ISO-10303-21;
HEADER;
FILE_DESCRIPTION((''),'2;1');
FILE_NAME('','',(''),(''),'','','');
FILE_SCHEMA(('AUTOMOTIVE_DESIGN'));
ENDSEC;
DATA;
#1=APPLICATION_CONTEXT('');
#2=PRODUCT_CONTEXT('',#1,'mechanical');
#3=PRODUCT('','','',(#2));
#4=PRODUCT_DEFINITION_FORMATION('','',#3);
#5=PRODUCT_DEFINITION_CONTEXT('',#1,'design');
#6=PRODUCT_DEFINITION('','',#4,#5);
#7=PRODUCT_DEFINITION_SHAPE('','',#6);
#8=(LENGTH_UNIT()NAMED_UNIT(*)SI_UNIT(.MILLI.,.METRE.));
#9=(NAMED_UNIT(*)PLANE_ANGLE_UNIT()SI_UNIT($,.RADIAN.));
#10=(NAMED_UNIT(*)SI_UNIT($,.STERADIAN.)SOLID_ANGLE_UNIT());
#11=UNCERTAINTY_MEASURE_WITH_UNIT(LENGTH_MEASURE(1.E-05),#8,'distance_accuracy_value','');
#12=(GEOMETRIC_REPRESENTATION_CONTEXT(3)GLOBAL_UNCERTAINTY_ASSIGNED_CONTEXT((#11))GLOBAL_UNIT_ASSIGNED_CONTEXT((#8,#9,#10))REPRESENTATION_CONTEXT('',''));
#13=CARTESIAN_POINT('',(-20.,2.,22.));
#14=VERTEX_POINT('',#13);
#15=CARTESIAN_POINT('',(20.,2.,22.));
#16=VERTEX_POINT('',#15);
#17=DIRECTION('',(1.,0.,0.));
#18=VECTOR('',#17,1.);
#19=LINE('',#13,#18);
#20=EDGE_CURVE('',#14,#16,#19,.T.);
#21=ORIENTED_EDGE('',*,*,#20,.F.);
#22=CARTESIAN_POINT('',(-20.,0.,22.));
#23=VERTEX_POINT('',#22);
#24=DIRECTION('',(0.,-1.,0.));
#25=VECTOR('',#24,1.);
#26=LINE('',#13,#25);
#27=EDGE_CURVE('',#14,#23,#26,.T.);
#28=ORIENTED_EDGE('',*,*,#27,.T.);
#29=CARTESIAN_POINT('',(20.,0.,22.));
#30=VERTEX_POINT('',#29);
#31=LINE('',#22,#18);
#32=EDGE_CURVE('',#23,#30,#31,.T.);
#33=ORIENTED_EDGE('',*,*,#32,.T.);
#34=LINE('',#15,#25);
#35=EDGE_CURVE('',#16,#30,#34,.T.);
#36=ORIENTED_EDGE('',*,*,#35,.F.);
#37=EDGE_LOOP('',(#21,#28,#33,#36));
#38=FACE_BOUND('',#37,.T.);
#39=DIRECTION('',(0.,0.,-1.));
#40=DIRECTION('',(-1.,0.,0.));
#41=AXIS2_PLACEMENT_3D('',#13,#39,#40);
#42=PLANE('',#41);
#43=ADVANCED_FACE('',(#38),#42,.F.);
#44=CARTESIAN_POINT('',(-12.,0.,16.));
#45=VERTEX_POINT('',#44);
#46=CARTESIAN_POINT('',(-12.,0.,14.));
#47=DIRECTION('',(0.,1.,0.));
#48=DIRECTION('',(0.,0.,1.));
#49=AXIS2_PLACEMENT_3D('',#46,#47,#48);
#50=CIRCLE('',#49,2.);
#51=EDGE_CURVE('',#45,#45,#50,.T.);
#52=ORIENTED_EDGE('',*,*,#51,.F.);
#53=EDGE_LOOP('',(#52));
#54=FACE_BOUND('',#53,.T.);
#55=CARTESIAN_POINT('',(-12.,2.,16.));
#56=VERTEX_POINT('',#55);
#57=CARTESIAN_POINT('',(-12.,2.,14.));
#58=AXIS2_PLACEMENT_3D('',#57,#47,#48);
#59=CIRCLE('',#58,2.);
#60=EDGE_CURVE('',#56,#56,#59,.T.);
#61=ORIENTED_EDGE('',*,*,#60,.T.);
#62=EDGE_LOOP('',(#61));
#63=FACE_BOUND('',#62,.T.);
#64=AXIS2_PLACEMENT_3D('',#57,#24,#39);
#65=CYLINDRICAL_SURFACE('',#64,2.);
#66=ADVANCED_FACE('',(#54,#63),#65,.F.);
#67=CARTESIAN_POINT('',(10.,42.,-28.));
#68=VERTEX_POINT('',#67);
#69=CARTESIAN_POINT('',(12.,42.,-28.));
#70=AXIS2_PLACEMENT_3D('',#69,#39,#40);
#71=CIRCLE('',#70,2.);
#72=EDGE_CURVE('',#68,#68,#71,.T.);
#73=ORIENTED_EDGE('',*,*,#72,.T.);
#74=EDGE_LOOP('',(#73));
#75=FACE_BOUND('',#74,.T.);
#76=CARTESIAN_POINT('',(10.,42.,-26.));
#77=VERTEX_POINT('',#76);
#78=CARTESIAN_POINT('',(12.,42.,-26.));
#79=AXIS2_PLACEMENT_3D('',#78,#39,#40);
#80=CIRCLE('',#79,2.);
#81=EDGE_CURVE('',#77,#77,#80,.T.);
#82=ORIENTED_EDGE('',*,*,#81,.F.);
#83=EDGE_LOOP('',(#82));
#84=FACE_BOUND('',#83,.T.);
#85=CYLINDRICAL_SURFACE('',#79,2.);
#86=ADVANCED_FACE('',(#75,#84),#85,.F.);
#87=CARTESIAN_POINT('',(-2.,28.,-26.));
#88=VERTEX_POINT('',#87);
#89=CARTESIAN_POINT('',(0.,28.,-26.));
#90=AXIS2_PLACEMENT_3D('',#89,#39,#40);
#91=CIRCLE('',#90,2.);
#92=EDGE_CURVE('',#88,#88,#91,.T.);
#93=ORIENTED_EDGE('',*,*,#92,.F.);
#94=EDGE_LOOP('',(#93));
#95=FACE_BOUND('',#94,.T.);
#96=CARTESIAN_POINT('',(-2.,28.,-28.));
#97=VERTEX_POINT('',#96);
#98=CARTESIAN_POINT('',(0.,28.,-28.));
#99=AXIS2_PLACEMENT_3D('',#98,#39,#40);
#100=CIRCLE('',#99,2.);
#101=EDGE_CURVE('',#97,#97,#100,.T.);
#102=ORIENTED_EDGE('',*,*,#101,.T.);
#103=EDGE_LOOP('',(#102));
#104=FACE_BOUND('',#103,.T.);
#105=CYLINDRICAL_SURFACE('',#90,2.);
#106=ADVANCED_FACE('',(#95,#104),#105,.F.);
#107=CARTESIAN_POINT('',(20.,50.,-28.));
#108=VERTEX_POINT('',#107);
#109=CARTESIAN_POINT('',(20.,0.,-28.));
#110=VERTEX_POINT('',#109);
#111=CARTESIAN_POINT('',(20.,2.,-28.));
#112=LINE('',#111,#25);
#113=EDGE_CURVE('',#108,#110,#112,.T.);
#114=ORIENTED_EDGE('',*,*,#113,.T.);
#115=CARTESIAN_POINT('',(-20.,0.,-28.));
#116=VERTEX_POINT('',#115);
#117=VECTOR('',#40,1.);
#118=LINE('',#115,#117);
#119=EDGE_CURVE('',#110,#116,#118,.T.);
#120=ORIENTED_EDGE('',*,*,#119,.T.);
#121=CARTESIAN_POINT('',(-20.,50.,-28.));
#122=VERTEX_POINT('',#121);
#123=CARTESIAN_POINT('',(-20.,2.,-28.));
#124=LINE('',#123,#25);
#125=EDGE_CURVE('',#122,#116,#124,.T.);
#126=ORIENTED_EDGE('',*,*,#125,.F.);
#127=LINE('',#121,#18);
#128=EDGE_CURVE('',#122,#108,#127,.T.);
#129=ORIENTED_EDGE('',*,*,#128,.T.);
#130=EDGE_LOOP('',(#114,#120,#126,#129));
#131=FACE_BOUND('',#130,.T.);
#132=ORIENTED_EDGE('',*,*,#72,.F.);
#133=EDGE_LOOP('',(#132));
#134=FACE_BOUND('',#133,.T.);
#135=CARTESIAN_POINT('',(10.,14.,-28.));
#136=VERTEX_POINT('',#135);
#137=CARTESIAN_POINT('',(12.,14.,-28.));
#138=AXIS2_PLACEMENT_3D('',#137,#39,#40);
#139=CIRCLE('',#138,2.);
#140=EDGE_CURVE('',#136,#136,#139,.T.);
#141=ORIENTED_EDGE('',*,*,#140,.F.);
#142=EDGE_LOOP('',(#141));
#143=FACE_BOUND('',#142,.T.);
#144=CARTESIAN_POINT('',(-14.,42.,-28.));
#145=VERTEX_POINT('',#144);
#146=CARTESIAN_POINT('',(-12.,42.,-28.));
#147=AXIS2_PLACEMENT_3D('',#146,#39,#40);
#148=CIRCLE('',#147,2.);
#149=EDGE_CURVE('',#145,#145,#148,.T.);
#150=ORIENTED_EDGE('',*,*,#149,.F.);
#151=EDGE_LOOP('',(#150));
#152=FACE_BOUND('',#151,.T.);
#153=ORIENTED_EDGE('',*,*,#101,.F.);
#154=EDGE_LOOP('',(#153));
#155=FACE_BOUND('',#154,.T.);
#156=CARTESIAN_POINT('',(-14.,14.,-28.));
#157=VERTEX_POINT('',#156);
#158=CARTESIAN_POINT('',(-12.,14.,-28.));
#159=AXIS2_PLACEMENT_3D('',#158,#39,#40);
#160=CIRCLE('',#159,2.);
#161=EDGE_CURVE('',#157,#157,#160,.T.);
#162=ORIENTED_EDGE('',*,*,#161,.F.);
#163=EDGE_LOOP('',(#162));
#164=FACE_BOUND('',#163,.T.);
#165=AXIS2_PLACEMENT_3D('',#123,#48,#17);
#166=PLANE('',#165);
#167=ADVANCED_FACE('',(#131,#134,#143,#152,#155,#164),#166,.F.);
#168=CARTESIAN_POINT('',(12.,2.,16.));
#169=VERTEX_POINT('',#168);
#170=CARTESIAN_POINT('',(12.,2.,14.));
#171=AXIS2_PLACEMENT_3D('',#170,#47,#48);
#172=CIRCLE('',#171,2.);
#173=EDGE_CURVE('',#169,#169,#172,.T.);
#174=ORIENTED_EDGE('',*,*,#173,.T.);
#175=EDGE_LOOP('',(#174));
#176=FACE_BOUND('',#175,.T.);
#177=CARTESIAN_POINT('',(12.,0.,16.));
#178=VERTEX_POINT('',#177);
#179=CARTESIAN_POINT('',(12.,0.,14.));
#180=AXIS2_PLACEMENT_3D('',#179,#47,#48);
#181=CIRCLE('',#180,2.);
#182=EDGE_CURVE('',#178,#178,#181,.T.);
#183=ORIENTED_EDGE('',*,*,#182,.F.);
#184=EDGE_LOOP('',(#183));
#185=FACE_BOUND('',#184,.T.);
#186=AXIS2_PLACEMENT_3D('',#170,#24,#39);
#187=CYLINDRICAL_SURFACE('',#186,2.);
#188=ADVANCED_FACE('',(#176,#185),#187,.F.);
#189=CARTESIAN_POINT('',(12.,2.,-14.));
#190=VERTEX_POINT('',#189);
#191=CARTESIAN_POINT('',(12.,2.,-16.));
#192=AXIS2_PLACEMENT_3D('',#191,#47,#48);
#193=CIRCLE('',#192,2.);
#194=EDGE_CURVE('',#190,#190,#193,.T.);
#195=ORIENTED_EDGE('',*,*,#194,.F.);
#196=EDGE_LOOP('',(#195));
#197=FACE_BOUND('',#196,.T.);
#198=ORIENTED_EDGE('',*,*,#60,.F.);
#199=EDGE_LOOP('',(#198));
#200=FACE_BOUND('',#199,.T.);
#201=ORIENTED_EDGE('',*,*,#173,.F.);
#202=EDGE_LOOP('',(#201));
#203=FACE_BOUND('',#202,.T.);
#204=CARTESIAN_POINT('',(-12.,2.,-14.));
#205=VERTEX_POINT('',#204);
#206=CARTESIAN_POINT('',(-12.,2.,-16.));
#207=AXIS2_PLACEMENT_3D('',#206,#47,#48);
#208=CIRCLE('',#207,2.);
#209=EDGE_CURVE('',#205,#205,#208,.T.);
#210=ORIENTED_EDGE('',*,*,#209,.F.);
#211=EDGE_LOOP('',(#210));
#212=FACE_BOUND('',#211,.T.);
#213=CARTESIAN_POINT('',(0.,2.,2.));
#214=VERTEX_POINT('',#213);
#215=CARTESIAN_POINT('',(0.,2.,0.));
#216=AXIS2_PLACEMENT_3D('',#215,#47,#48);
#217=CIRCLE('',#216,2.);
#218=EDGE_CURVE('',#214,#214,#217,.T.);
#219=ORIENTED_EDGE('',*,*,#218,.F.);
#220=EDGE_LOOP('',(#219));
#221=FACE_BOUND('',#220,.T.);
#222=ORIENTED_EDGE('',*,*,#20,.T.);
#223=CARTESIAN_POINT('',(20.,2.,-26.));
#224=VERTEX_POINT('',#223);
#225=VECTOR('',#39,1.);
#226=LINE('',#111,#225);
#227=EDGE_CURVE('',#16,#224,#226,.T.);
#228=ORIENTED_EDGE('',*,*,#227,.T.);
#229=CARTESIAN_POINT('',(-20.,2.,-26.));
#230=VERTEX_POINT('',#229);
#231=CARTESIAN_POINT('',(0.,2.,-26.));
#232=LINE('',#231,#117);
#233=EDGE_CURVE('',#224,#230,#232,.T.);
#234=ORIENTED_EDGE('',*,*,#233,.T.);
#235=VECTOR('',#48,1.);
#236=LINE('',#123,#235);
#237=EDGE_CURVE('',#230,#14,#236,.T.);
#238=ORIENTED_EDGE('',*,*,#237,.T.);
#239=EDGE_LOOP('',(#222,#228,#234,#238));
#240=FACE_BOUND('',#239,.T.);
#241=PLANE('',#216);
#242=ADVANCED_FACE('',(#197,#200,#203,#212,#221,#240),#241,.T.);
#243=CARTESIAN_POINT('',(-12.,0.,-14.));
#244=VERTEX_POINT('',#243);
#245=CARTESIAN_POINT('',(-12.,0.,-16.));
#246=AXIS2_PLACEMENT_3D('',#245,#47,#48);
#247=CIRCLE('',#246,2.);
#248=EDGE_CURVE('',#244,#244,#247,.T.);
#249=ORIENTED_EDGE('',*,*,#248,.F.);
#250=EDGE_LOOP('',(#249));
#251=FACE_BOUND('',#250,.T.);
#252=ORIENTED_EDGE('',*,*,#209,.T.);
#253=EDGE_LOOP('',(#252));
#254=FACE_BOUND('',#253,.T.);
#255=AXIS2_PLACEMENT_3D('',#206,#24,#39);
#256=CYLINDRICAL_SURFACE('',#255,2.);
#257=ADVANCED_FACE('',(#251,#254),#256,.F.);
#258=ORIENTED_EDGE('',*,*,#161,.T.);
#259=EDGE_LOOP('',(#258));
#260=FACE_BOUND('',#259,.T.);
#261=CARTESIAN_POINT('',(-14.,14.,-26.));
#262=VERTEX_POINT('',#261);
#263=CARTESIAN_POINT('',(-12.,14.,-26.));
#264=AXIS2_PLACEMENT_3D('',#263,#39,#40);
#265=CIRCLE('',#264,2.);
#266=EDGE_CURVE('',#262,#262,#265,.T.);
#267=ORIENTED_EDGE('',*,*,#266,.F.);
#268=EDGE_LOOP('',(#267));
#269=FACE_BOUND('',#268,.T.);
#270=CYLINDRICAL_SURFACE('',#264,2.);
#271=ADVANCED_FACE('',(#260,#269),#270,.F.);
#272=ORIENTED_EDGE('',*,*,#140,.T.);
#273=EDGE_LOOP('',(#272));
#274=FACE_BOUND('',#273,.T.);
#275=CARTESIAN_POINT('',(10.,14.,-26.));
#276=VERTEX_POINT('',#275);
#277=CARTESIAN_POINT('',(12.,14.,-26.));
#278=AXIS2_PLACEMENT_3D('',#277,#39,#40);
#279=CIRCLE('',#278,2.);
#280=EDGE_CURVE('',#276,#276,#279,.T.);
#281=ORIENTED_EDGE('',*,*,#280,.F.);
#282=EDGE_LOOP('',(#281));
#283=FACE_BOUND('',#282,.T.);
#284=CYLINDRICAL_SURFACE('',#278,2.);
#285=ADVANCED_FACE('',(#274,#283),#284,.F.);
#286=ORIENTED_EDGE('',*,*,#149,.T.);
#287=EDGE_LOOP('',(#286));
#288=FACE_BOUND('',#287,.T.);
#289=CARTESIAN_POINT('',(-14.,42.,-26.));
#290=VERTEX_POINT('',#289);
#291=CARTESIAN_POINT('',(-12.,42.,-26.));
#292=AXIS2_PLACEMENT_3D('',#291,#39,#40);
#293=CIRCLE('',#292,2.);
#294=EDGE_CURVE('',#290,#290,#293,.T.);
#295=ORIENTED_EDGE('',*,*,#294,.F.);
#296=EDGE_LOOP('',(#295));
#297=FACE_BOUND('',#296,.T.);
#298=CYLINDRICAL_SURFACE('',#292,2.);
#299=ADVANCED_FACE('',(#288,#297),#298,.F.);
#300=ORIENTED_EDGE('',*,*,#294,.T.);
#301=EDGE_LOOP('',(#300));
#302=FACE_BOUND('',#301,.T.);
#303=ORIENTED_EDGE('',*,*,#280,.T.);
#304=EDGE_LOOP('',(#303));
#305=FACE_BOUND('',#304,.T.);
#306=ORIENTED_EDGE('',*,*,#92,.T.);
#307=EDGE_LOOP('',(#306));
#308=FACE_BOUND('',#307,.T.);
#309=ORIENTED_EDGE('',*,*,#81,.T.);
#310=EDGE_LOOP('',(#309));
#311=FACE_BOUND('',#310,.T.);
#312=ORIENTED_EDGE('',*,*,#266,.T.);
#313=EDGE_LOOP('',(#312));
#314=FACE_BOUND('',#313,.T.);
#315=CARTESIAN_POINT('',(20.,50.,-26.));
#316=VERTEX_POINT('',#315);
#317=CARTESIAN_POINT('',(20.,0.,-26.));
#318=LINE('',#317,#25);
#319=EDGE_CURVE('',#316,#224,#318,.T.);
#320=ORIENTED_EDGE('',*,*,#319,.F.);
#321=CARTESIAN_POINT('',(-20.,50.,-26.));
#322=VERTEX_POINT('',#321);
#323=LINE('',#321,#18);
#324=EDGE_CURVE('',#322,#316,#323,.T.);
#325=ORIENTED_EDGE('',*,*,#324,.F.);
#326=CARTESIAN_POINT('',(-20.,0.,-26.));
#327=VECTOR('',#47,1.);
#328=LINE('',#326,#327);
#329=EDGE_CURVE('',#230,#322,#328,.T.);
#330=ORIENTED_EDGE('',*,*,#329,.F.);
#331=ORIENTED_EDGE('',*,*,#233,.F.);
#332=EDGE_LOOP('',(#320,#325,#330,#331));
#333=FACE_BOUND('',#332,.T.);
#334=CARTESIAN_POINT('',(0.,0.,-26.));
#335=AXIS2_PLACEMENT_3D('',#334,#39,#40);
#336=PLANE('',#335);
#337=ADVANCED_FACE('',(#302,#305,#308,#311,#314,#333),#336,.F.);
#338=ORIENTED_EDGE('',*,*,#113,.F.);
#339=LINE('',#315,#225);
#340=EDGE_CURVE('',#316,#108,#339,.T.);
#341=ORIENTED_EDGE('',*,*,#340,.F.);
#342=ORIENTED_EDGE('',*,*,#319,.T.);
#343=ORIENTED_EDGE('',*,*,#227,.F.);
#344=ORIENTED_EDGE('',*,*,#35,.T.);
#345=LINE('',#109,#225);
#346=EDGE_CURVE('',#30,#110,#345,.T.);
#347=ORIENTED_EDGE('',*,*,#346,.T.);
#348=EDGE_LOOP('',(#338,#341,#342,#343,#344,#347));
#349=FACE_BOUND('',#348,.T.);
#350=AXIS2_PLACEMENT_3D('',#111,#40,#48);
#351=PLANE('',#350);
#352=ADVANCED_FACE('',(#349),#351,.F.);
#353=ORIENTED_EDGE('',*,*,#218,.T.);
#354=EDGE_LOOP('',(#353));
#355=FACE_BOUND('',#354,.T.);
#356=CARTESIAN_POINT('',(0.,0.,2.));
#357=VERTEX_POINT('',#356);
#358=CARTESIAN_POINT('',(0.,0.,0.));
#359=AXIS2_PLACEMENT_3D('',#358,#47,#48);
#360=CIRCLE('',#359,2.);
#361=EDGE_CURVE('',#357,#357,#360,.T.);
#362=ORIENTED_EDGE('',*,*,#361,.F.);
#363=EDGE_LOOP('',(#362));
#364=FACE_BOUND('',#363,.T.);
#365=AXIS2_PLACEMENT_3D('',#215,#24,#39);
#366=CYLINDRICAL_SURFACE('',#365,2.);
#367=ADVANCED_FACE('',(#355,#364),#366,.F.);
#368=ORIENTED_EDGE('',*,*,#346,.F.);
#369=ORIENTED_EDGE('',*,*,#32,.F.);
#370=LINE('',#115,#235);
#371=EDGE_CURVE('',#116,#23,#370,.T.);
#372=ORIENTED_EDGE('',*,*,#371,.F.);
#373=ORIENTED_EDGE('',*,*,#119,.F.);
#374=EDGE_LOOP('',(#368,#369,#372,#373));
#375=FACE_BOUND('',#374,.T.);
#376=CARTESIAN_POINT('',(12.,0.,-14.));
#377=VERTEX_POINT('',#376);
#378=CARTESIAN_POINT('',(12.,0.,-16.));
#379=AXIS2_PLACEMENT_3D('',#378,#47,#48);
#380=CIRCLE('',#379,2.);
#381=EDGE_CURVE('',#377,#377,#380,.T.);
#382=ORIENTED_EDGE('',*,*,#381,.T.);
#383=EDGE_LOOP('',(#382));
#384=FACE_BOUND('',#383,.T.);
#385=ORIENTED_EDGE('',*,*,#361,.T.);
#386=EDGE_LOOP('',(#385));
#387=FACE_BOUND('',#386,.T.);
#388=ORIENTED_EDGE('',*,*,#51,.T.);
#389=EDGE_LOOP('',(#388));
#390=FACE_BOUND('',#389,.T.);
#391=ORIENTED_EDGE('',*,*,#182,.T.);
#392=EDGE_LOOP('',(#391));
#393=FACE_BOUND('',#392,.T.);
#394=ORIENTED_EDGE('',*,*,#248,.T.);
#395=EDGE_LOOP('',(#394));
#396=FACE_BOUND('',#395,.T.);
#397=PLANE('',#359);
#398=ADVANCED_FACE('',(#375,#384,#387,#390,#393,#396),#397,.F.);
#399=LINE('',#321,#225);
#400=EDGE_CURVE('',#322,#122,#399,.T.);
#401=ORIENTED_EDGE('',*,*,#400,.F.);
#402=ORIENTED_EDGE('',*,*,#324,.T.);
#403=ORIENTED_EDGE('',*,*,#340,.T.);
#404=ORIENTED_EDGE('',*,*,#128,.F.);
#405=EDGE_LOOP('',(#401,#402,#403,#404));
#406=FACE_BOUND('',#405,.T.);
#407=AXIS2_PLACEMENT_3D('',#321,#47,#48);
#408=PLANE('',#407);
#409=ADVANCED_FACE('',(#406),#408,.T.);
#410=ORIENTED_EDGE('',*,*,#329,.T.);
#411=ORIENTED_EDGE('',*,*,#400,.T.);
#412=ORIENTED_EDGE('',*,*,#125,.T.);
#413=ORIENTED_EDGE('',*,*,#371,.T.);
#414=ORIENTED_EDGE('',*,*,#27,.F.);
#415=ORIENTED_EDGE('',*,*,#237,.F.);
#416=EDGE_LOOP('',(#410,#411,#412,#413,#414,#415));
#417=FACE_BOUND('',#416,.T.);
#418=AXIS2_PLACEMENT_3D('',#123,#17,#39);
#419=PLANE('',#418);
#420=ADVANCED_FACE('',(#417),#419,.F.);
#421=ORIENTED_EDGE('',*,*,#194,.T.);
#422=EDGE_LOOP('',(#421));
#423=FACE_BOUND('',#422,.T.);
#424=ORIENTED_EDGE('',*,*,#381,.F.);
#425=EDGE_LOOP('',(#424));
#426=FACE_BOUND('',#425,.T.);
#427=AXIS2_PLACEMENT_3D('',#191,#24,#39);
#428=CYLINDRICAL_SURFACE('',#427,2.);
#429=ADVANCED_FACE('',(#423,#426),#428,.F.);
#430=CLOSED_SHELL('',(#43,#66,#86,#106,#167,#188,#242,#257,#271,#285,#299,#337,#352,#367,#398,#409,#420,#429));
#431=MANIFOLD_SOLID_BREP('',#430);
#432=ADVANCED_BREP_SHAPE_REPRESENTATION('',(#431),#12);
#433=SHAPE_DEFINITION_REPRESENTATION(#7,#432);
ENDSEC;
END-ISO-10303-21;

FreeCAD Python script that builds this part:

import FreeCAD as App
import Part
import Sketcher
from FreeCAD import Vector

doc = App.newDocument("Part")
body = doc.addObject("PartDesign::Body", "Body")

sketch1 = body.newObject("Sketcher::SketchObject", "Sketch")
sketch1.AttachmentSupport = (doc.getObject("XZ_Plane"), [""])
sketch1.MapMode = "FlatFace"
sketch1.addGeometry(Part.LineSegment(Vector(-20, -28, 0), Vector(-20, 22, 0)), False)
sketch1.addGeometry(Part.LineSegment(Vector(-20, 22, 0), Vector(20, 22, 0)), False)
sketch1.addGeometry(Part.LineSegment(Vector(20, 22, 0), Vector(20, -28, 0)), False)
sketch1.addGeometry(Part.LineSegment(Vector(20, -28, 0), Vector(-20, -28, 0)), False)
sketch1.addGeometry(Part.Circle(Vector(-12, 14, 0), Vector(0, 0, 1), 2), False)
sketch1.addGeometry(Part.Circle(Vector(12, 14, 0), Vector(0, 0, 1), 2), False)
sketch1.addGeometry(Part.Circle(Vector(0, 0, 0), Vector(0, 0, 1), 2), False)
sketch1.addGeometry(Part.Circle(Vector(-12, -16, 0), Vector(0, 0, 1), 2), False)
sketch1.addGeometry(Part.Circle(Vector(12, -16, 0), Vector(0, 0, 1), 2), False)
sketch1.addConstraint(Sketcher.Constraint("Coincident", 0, 2, 1, 1))
sketch1.addConstraint(Sketcher.Constraint("Coincident", 1, 2, 2, 1))
sketch1.addConstraint(Sketcher.Constraint("Coincident", 2, 2, 3, 1))
sketch1.addConstraint(Sketcher.Constraint("Coincident", 3, 2, 0, 1))
sketch1.addConstraint(Sketcher.Constraint("Vertical", 0))
sketch1.addConstraint(Sketcher.Constraint("Horizontal", 1))
sketch1.addConstraint(Sketcher.Constraint("Vertical", 2))
sketch1.addConstraint(Sketcher.Constraint("Horizontal", 3))
sketch1.addConstraint(Sketcher.Constraint("Coincident", 6, 3, -1, 1))
sketch1.addConstraint(Sketcher.Constraint("Equal", 4, 5))
sketch1.addConstraint(Sketcher.Constraint("Equal", 5, 6))
sketch1.addConstraint(Sketcher.Constraint("Equal", 6, 7))
sketch1.addConstraint(Sketcher.Constraint("Equal", 7, 8))
sketch1.addConstraint(Sketcher.Constraint("Symmetric", 4, 3, 5, 3, -2))
sketch1.addConstraint(Sketcher.Constraint("Symmetric", 7, 3, 8, 3, -2))
sketch1.addConstraint(Sketcher.Constraint("Vertical", 4, 3, 7, 3))
sketch1.addConstraint(Sketcher.Constraint("Diameter", 4, 4.0))
sketch1.addConstraint(Sketcher.Constraint("DistanceX", 1, 1, 1, 2, 40.0))
sketch1.addConstraint(Sketcher.Constraint("DistanceY", 0, 1, 0, 2, 50.0))
sketch1.addConstraint(Sketcher.Constraint("DistanceX", 4, 3, -1, 1, 12.0))
sketch1.addConstraint(Sketcher.Constraint("DistanceY", -1, 1, 4, 3, 14.0))
sketch1.addConstraint(Sketcher.Constraint("DistanceY", 7, 3, -1, 1, 16.0))
sketch1.addConstraint(Sketcher.Constraint("DistanceX", 0, 2, -1, 1, 20.0))
sketch1.addConstraint(Sketcher.Constraint("DistanceY", -1, 1, 0, 2, 22.0))
pad1 = body.newObject("PartDesign::Pad", "Pad")
pad1.Profile = sketch1
pad1.Length = 2
pad1.Reversed = True

sketch2 = body.newObject("Sketcher::SketchObject", "Sketch001")
sketch2.AttachmentSupport = (doc.getObject("XY_Plane"), [""])
sketch2.MapMode = "FlatFace"
sketch2.AttachmentOffset = App.Placement(Vector(0, 0, -28), App.Rotation())
sketch2.addGeometry(Part.LineSegment(Vector(20, 50, 0), Vector(20, 0, 0)), False)
sketch2.addGeometry(Part.LineSegment(Vector(20, 0, 0), Vector(-20, 0, 0)), False)
sketch2.addGeometry(Part.LineSegment(Vector(-20, 0, 0), Vector(-20, 50, 0)), False)
sketch2.addGeometry(Part.LineSegment(Vector(-20, 50, 0), Vector(20, 50, 0)), False)
sketch2.addGeometry(Part.Circle(Vector(12, 14, 0), Vector(0, 0, 1), 2), False)
sketch2.addGeometry(Part.Circle(Vector(-12, 14, 0), Vector(0, 0, 1), 2), False)
sketch2.addGeometry(Part.Circle(Vector(12, 42, 0), Vector(0, 0, 1), 2), False)
sketch2.addGeometry(Part.Circle(Vector(0, 28, 0), Vector(0, 0, 1), 2), False)
sketch2.addGeometry(Part.Circle(Vector(-12, 42, 0), Vector(0, 0, 1), 2), False)
sketch2.addConstraint(Sketcher.Constraint("Coincident", 0, 2, 1, 1))
sketch2.addConstraint(Sketcher.Constraint("Coincident", 1, 2, 2, 1))
sketch2.addConstraint(Sketcher.Constraint("Coincident", 2, 2, 3, 1))
sketch2.addConstraint(Sketcher.Constraint("Coincident", 3, 2, 0, 1))
sketch2.addConstraint(Sketcher.Constraint("Vertical", 0))
sketch2.addConstraint(Sketcher.Constraint("Horizontal", 1))
sketch2.addConstraint(Sketcher.Constraint("Vertical", 2))
sketch2.addConstraint(Sketcher.Constraint("Horizontal", 3))
sketch2.addConstraint(Sketcher.Constraint("Equal", 4, 5))
sketch2.addConstraint(Sketcher.Constraint("Equal", 5, 6))
sketch2.addConstraint(Sketcher.Constraint("Equal", 6, 7))
sketch2.addConstraint(Sketcher.Constraint("Equal", 7, 8))
sketch2.addConstraint(Sketcher.Constraint("Symmetric", 0, 2, 1, 2, -1, 1))
sketch2.addConstraint(Sketcher.Constraint("Symmetric", 4, 3, 5, 3, -2))
sketch2.addConstraint(Sketcher.Constraint("Symmetric", 6, 3, 8, 3, -2))
sketch2.addConstraint(Sketcher.Constraint("PointOnObject", 7, 3, -2))
sketch2.addConstraint(Sketcher.Constraint("Vertical", 4, 3, 6, 3))
sketch2.addConstraint(Sketcher.Constraint("Diameter", 4, 4.0))
sketch2.addConstraint(Sketcher.Constraint("DistanceX", 1, 2, 1, 1, 40.0))
sketch2.addConstraint(Sketcher.Constraint("DistanceY", 0, 2, 0, 1, 50.0))
sketch2.addConstraint(Sketcher.Constraint("DistanceX", -1, 1, 4, 3, 12.0))
sketch2.addConstraint(Sketcher.Constraint("DistanceY", -1, 1, 4, 3, 14.0))
sketch2.addConstraint(Sketcher.Constraint("DistanceY", -1, 1, 6, 3, 42.0))
sketch2.addConstraint(Sketcher.Constraint("DistanceY", -1, 1, 7, 3, 28.0))
pad2 = body.newObject("PartDesign::Pad", "Pad001")
pad2.Profile = sketch2
pad2.Length = 2

doc.recompute()
